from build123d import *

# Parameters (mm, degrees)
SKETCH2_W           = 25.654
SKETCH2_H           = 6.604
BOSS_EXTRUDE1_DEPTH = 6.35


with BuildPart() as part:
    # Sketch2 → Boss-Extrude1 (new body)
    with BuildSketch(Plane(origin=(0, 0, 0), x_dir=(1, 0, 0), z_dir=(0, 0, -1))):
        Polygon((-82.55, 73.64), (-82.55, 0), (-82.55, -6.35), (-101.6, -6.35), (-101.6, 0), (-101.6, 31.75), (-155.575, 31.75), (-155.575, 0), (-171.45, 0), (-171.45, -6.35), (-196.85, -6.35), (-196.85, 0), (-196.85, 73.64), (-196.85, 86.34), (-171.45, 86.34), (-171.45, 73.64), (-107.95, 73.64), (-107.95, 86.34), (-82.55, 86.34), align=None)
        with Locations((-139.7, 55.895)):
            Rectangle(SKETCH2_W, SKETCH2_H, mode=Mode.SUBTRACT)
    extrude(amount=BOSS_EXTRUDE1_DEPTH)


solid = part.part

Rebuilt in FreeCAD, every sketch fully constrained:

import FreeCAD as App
import Part
import Sketcher
Q = App.Units.Quantity


def add_polygon(sketch, points):
    """Adds a closed chain of lines whose ends are joined by coincident constraints."""
    first, n = sketch.GeometryCount, len(points)
    for a, b in zip(points, points[1:] + points[:1]):
        sketch.addGeometry(Part.LineSegment(App.Vector(*a, 0), App.Vector(*b, 0)), False)
    for i in range(n):
        sketch.addConstraint(Sketcher.Constraint("Coincident", first + i, 2, first + (i + 1) % n, 1))

doc = App.newDocument("Part")
params = doc.addObject("Spreadsheet::Sheet", "Params")
for row, (alias, value) in enumerate([
    ("sketch1_width", "1 in"),
    ("sketch1_width2", "2.5 in"),
    ("sketch1_height", "0.5 in"),
    ("sketch1_height2", "1.5 in"),
    ("sketch1_width3", "0.75 in"),
    ("pad1_length", "0.25 in"),
], start=1):
    params.set(f"A{row}", alias)
    params.set(f"B{row}", "=" + value)
    params.setAlias(f"B{row}", alias)

body = doc.addObject("PartDesign::Body", "Body")

# Sketch on XY plane
sketch1 = body.newObject("Sketcher::SketchObject", "Sketch")
sketch1.AttachmentSupport = (doc.getObject("XY_Plane"), [""])
sketch1.MapMode = "FlatFace"
add_polygon(sketch1, [(-82.55, 6.35), (-82.55, -86.34), (-107.95, -86.34), (-107.95, -73.64), (-171.45, -73.64), (-171.45, -86.34), (-196.85, -86.34), (-196.85, 6.35), (-171.45, 6.35), (-171.45, 0), (-155.575, 0), (-155.575, -31.75), (-101.6, -31.75), (-101.6, 6.35)])  # lines 0-13
add_polygon(sketch1, [(-152.527, -52.593), (-152.527, -59.197), (-126.873, -59.197), (-126.873, -52.593)])  # lines 14-17
sketch1.addConstraint(Sketcher.Constraint("Vertical", 0))
sketch1.addConstraint(Sketcher.Constraint("Horizontal", 1))
sketch1.addConstraint(Sketcher.Constraint("Vertical", 2))
sketch1.addConstraint(Sketcher.Constraint("Horizontal", 3))
sketch1.addConstraint(Sketcher.Constraint("Vertical", 4))
sketch1.addConstraint(Sketcher.Constraint("Horizontal", 5))
sketch1.addConstraint(Sketcher.Constraint("Vertical", 6))
sketch1.addConstraint(Sketcher.Constraint("Horizontal", 7))
sketch1.addConstraint(Sketcher.Constraint("Vertical", 8))
sketch1.addConstraint(Sketcher.Constraint("Horizontal", 9))
sketch1.addConstraint(Sketcher.Constraint("Vertical", 10))
sketch1.addConstraint(Sketcher.Constraint("Horizontal", 11))
sketch1.addConstraint(Sketcher.Constraint("Vertical", 12))
sketch1.addConstraint(Sketcher.Constraint("Horizontal", 13))
sketch1.addConstraint(Sketcher.Constraint("Vertical", 14))
sketch1.addConstraint(Sketcher.Constraint("Horizontal", 15))
sketch1.addConstraint(Sketcher.Constraint("Vertical", 16))
sketch1.addConstraint(Sketcher.Constraint("Horizontal", 17))
sketch1.addConstraint(Sketcher.Constraint("PointOnObject", 8, 2, -1))
sketch1.addConstraint(Sketcher.Constraint("Horizontal", 1, 2, 4, 2))
sketch1.addConstraint(Sketcher.Constraint("Horizontal", 7, 2, 12, 2))
sketch1.addConstraint(Sketcher.Constraint("Vertical", 4, 2, 7, 2))
sketch1.addConstraint(Sketcher.Constraint("Equal", 1, 5))
sketch1.addConstraint(Sketcher.Constraint("DistanceX", 1, 2, 1, 1, Q("1 in")))
sketch1.addConstraint(Sketcher.Constraint("DistanceX", 3, 2, 3, 1, Q("2.5 in")))
sketch1.addConstraint(Sketcher.Constraint("DistanceY", 2, 1, 2, 2, Q("0.5 in")))
sketch1.addConstraint(Sketcher.Constraint("DistanceY", 12, 1, 12, 2, Q("1.5 in")))
sketch1.addConstraint(Sketcher.Constraint("DistanceX", 11, 2, -1, 1, Q("4 in")))
sketch1.addConstraint(Sketcher.Constraint("DistanceX", 13, 1, 13, 2, Q("0.75 in")))
sketch1.addConstraint(Sketcher.Constraint("DistanceX", 15, 1, 15, 2, Q("1.01 in")))
sketch1.addConstraint(Sketcher.Constraint("DistanceY", 8, 2, 8, 1, Q("0.25 in")))
sketch1.addConstraint(Sketcher.Constraint("DistanceY", 14, 2, 14, 1, Q("0.26 in")))
sketch1.addConstraint(Sketcher.Constraint("DistanceX", 9, 1, 9, 2, Q("0.625 in")))
sketch1.addConstraint(Sketcher.Constraint("DistanceX", 10, 2, 14, 2, Q("0.12 in")))
sketch1.addConstraint(Sketcher.Constraint("DistanceY", 0, 2, 0, 1, 92.69))
sketch1.addConstraint(Sketcher.Constraint("DistanceY", 14, 2, -1, 1, 59.197))
sketch1.setExpression("Constraints[41]", "Params.sketch1_width")
sketch1.setExpression("Constraints[42]", "Params.sketch1_width2")
sketch1.setExpression("Constraints[43]", "Params.sketch1_height")
sketch1.setExpression("Constraints[44]", "Params.sketch1_height2")
sketch1.setExpression("Constraints[46]", "Params.sketch1_width3")
pad1 = body.newObject("PartDesign::Pad", "Pad")
pad1.Profile = sketch1
pad1.setExpression("Length", "Params.pad1_length")
pad1.Reversed = True

doc.recompute()
